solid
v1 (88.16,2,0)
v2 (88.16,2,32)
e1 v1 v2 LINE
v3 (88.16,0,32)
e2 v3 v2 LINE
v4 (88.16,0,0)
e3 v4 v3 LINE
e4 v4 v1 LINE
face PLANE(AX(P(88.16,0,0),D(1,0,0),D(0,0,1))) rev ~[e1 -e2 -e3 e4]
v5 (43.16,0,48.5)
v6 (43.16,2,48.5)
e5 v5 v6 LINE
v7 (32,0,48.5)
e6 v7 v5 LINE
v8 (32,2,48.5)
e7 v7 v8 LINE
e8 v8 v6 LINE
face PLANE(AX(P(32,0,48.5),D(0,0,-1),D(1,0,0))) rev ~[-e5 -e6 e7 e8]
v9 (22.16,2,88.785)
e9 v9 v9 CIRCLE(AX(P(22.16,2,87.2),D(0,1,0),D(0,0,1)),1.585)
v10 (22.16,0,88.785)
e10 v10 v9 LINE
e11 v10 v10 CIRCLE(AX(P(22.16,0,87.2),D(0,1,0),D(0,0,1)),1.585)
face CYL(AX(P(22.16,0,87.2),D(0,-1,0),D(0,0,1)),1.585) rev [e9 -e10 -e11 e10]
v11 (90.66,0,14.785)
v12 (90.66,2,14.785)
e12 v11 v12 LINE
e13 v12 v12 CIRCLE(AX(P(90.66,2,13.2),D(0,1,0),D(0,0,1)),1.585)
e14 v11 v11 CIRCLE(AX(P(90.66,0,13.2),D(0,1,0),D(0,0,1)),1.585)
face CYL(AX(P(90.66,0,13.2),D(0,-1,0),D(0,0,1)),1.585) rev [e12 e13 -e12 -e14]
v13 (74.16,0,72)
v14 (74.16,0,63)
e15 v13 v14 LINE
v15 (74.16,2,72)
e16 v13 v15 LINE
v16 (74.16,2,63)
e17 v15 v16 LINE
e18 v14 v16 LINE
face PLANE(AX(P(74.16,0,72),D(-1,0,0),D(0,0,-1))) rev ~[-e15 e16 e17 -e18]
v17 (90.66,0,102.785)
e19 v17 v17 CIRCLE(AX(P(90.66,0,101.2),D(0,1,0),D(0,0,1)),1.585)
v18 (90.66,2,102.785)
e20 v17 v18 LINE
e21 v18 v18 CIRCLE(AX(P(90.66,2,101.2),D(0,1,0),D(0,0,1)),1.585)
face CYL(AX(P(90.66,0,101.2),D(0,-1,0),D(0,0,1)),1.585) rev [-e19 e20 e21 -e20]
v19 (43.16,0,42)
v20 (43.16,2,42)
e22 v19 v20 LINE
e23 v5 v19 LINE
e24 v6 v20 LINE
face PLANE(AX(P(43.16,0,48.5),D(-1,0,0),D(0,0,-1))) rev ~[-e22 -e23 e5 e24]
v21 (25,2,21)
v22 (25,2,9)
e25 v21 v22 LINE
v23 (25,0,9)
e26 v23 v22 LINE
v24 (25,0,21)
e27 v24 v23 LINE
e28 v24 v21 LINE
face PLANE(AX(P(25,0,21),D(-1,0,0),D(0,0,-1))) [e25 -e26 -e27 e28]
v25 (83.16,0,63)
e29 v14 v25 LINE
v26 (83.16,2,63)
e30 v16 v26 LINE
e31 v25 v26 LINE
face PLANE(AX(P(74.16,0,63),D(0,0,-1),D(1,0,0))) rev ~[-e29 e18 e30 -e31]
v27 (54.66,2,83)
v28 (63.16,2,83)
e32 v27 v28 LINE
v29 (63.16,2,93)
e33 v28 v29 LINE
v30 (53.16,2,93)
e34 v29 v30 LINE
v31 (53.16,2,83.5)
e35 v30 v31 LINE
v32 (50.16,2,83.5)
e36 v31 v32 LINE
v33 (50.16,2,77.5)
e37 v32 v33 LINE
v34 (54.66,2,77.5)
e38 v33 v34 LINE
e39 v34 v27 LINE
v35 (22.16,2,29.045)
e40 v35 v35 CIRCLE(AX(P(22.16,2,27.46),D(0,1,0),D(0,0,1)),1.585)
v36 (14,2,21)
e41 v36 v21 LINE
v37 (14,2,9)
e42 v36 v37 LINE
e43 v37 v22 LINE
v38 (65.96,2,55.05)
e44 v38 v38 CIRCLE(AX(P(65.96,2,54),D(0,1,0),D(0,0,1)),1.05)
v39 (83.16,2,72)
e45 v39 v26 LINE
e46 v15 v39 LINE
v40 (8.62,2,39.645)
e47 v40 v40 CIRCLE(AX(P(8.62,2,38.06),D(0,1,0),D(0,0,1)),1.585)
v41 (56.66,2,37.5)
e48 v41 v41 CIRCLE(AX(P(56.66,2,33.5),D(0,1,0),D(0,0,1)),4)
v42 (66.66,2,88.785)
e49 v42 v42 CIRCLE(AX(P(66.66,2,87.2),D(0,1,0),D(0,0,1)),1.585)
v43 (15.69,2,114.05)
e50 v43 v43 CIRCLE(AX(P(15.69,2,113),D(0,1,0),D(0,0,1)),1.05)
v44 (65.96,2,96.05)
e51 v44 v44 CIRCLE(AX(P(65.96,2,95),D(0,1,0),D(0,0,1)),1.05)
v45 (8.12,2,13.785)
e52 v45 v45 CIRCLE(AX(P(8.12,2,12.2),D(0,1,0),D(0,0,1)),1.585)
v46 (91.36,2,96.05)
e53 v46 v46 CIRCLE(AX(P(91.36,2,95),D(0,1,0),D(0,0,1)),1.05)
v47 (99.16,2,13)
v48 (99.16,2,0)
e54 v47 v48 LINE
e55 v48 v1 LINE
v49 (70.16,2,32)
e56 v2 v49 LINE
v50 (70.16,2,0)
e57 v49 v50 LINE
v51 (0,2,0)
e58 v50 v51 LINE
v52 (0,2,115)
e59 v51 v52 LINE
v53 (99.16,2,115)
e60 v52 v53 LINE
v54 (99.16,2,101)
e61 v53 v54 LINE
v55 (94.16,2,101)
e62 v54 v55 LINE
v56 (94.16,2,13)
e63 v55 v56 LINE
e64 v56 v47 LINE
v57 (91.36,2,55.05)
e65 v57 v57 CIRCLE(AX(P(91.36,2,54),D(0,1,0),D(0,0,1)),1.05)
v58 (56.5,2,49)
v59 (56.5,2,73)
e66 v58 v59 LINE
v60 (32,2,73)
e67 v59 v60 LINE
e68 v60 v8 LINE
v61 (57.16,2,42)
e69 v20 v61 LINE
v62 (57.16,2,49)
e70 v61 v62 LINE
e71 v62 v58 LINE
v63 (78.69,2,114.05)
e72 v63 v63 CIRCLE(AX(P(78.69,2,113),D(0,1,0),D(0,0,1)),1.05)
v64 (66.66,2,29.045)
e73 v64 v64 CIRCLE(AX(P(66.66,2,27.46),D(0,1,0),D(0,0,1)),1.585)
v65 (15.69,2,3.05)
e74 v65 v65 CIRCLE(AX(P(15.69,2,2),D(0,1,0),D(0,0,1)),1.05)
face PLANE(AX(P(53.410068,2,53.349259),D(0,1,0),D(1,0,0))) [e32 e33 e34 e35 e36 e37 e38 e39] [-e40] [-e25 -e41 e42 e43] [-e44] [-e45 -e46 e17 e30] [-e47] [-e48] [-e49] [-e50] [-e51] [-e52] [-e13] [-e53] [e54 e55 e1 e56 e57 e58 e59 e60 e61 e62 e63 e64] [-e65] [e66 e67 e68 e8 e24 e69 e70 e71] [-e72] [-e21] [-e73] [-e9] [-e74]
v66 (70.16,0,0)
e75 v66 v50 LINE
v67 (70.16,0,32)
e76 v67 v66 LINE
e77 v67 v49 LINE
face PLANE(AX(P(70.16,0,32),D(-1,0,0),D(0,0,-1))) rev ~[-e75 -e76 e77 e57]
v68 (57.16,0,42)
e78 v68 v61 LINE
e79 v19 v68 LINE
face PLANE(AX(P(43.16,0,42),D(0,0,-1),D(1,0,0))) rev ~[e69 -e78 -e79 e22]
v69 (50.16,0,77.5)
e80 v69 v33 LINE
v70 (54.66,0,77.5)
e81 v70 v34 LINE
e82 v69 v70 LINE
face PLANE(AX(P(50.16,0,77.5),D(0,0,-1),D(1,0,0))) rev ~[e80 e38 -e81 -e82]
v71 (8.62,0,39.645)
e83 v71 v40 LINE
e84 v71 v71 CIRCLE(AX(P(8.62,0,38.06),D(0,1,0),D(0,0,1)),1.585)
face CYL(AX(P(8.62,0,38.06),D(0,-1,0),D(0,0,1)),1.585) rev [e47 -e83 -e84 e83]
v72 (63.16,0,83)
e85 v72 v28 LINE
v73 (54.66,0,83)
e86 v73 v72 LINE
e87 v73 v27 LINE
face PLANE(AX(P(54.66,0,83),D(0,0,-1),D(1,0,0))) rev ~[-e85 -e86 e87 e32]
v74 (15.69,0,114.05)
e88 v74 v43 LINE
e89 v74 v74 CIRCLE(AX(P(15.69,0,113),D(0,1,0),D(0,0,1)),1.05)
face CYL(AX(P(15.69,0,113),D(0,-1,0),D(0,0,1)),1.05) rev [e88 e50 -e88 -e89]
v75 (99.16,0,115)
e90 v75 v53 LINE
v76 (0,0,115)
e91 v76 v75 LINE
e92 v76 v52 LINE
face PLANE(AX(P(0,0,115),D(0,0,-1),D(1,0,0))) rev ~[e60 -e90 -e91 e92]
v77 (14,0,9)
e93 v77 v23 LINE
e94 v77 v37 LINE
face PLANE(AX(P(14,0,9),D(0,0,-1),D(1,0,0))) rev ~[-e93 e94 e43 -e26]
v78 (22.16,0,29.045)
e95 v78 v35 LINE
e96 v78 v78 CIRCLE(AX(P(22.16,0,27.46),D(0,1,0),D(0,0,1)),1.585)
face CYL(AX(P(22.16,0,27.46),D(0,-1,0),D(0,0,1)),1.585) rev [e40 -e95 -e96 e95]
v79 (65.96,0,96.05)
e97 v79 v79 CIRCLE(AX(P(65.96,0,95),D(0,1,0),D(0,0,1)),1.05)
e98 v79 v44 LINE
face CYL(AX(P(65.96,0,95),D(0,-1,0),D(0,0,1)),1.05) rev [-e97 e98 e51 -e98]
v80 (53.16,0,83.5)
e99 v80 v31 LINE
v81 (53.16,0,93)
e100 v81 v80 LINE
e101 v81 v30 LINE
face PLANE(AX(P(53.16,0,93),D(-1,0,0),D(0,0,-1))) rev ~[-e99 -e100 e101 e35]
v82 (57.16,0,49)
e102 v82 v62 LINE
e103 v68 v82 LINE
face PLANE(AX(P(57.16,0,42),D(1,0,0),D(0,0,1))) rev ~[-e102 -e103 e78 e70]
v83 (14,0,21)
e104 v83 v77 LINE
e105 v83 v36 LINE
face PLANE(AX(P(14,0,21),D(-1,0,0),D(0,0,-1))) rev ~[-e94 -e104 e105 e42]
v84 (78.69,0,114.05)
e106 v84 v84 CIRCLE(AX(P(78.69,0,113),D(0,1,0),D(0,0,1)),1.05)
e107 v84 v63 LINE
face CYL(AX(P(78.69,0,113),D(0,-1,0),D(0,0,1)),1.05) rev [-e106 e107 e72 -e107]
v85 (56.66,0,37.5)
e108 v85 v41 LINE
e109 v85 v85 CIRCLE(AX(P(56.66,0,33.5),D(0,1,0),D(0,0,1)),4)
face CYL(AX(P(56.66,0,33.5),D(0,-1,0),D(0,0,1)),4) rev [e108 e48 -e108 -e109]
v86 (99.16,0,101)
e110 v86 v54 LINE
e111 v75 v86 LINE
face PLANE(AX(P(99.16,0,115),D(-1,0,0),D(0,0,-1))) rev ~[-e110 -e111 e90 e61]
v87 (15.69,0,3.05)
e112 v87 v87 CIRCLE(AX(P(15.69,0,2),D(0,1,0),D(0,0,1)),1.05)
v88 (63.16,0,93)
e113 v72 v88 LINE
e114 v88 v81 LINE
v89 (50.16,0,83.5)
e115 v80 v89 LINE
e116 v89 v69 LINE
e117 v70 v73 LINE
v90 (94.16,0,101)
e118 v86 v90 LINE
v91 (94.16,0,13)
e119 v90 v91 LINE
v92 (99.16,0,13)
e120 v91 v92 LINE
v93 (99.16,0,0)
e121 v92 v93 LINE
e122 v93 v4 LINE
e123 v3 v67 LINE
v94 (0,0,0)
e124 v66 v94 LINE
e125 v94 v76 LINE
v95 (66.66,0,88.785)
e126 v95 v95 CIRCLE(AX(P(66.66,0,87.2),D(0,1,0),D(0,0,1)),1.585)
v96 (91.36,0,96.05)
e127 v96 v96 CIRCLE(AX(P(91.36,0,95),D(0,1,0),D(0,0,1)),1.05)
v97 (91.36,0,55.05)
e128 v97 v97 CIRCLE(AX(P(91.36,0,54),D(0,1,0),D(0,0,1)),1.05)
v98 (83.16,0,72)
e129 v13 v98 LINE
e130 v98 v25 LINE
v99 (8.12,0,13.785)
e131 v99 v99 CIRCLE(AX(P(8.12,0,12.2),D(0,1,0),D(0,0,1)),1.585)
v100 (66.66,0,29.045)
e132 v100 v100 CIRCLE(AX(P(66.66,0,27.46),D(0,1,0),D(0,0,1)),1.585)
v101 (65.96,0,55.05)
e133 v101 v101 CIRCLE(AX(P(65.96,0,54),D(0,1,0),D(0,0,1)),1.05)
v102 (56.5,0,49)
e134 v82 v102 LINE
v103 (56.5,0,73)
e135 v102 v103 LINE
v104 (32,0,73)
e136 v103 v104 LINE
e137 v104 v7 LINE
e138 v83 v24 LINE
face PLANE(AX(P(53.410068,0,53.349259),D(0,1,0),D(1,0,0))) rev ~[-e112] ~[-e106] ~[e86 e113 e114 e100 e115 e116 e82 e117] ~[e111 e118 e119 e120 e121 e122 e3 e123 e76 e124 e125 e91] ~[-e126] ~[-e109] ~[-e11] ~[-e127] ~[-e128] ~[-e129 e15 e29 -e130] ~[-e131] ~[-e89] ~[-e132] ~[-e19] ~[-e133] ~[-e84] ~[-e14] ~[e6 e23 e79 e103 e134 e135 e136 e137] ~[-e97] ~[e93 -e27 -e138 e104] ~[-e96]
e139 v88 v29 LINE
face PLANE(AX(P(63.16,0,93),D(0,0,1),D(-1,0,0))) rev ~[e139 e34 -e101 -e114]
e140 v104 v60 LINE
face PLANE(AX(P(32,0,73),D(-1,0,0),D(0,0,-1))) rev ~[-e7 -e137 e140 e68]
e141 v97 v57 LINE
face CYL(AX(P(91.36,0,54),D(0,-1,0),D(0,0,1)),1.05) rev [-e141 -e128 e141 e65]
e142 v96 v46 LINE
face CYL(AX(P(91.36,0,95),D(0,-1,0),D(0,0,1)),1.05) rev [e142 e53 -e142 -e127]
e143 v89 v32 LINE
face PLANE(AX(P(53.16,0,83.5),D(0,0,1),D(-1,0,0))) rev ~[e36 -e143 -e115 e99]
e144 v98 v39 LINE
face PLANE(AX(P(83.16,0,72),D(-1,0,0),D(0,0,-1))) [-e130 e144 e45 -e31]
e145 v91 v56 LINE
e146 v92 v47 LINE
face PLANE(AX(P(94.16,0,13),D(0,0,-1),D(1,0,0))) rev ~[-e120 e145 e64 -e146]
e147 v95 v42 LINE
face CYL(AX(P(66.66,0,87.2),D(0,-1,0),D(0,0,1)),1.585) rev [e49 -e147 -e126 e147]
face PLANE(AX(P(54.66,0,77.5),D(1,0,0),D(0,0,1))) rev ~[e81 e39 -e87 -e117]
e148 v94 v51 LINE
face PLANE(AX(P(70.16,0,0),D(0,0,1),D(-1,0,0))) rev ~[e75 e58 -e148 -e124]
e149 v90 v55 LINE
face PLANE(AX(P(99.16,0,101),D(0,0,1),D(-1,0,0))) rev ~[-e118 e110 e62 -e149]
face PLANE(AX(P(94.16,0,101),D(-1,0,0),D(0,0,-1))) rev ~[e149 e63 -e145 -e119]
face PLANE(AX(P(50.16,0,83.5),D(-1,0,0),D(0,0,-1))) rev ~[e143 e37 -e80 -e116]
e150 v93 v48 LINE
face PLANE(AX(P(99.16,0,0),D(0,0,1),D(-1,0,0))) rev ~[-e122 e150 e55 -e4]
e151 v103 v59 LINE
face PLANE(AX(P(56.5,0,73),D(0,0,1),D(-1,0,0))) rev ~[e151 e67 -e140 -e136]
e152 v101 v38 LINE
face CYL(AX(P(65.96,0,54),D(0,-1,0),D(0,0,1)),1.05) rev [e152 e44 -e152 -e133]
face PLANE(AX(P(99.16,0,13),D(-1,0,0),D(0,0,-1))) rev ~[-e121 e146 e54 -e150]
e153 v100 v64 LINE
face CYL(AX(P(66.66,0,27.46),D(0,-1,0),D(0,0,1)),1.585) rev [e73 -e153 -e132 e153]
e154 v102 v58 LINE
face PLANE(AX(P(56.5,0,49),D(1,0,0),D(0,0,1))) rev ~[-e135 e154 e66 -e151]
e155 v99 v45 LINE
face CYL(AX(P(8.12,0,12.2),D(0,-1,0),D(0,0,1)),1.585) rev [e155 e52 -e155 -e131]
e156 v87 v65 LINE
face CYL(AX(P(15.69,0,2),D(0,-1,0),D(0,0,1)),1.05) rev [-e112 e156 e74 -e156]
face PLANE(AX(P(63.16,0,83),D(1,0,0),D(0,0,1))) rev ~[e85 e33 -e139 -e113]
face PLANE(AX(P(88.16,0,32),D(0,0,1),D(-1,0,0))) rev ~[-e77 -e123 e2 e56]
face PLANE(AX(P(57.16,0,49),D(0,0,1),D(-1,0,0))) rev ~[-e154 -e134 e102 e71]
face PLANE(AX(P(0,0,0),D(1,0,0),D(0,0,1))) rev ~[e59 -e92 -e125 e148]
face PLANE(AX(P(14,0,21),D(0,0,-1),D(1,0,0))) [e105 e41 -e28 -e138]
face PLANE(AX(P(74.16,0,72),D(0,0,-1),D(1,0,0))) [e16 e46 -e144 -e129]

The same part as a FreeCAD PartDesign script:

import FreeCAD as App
import Part
import Sketcher

V = App.Vector
Q = App.Units.Quantity


def add_polygon(sketch, points):
    """Adds a closed chain of lines whose ends are joined by coincident constraints."""
    first, n = sketch.GeometryCount, len(points)
    for a, b in zip(points, points[1:] + points[:1]):
        sketch.addGeometry(Part.LineSegment(App.Vector(*a, 0), App.Vector(*b, 0)), False)
    for i in range(n):
        sketch.addConstraint(Sketcher.Constraint("Coincident", first + i, 2, first + (i + 1) % n, 1))

doc = App.newDocument("Part")
body = doc.addObject("PartDesign::Body", "Body")

# Sketch on XZ plane
sketch1 = body.newObject("Sketcher::SketchObject", "Sketch")
sketch1.AttachmentSupport = (doc.getObject("XZ_Plane"), [""])
sketch1.MapMode = "FlatFace"
add_polygon(sketch1, [(70.2, 0), (0, 0), (0, 115), (99.2, 115), (99.2, 101), (94.2, 101), (94.2, 13), (99.2, 13), (99.2, 0), (88.2, 0), (88.2, 32), (70.2, 32)])  # lines 0-11
sketch1.addGeometry(Part.Circle(V(15.7, 113, 0), V(0, 0, 1), 1.1), False)  # 12
sketch1.addGeometry(Part.Circle(V(22.2, 87.2, 0), V(0, 0, 1), 1.6), False)  # 13
sketch1.addGeometry(Part.Circle(V(66, 95, 0), V(0, 0, 1), 1.1), False)  # 14
sketch1.addGeometry(Part.Circle(V(66.7, 87.2, 0), V(0, 0, 1), 1.6), False)  # 15
sketch1.addGeometry(Part.Circle(V(78.7, 113, 0), V(0, 0, 1), 1.1), False)  # 16
sketch1.addGeometry(Part.Circle(V(90.7, 101.2, 0), V(0, 0, 1), 1.6), False)  # 17
sketch1.addGeometry(Part.Circle(V(91.4, 95, 0), V(0, 0, 1), 1.1), False)  # 18
add_polygon(sketch1, [(53.2, 83.5), (50.2, 83.5), (50.2, 77.5), (54.7, 77.5), (54.7, 83), (63.2, 83), (63.2, 93), (53.2, 93)])  # lines 19-26
add_polygon(sketch1, [(83.2, 72), (74.2, 72), (74.2, 63), (83.2, 63)])  # lines 27-30
sketch1.addGeometry(Part.Circle(V(8.6, 38.1, 0), V(0, 0, 1), 1.6), False)  # 31
add_polygon(sketch1, [(32, 48.5), (43.2, 48.5), (43.2, 42), (57.2, 42), (57.2, 49), (56.5, 49), (56.5, 73), (32, 73)])  # lines 32-39
sketch1.addGeometry(Part.Circle(V(22.2, 27.5, 0), V(0, 0, 1), 1.6), False)  # 40
sketch1.addGeometry(Part.Circle(V(8.1, 12.2, 0), V(0, 0, 1), 1.6), False)  # 41
sketch1.addGeometry(Part.Circle(V(15.7, 2, 0), V(0, 0, 1), 1.1), False)  # 42
add_polygon(sketch1, [(25, 21), (14, 21), (14, 9), (25, 9)])  # lines 43-46
sketch1.addGeometry(Part.Circle(V(66, 54, 0), V(0, 0, 1), 1.1), False)  # 47
sketch1.addGeometry(Part.Circle(V(56.7, 33.5, 0), V(0, 0, 1), 4), False)  # 48
sketch1.addGeometry(Part.Circle(V(91.4, 54, 0), V(0, 0, 1), 1.1), False)  # 49
sketch1.addGeometry(Part.Circle(V(66.7, 27.5, 0), V(0, 0, 1), 1.6), False)  # 50
sketch1.addGeometry(Part.Circle(V(90.7, 13.2, 0), V(0, 0, 1), 1.6), False)  # 51
sketch1.addConstraint([
    Sketcher.Constraint("Horizontal", 0),
    Sketcher.Constraint("Vertical", 1),
    Sketcher.Constraint("Horizontal", 2),
    Sketcher.Constraint("Vertical", 3),
    Sketcher.Constraint("Horizontal", 4),
    Sketcher.Constraint("Vertical", 5),
    Sketcher.Constraint("Horizontal", 6),
    Sketcher.Constraint("Vertical", 7),
    Sketcher.Constraint("Horizontal", 8),
    Sketcher.Constraint("Vertical", 9),
    Sketcher.Constraint("Horizontal", 10),
    Sketcher.Constraint("Vertical", 11),
    Sketcher.Constraint("Horizontal", 19),
    Sketcher.Constraint("Vertical", 20),
    Sketcher.Constraint("Horizontal", 21),
    Sketcher.Constraint("Vertical", 22),
    Sketcher.Constraint("Horizontal", 23),
    Sketcher.Constraint("Vertical", 24),
    Sketcher.Constraint("Horizontal", 25),
    Sketcher.Constraint("Vertical", 26),
    Sketcher.Constraint("Horizontal", 27),
    Sketcher.Constraint("Vertical", 28),
    Sketcher.Constraint("Horizontal", 29),
    Sketcher.Constraint("Vertical", 30),
    Sketcher.Constraint("Horizontal", 32),
    Sketcher.Constraint("Vertical", 33),
    Sketcher.Constraint("Horizontal", 34),
    Sketcher.Constraint("Vertical", 35),
    Sketcher.Constraint("Horizontal", 36),
    Sketcher.Constraint("Vertical", 37),
    Sketcher.Constraint("Horizontal", 38),
    Sketcher.Constraint("Vertical", 39),
    Sketcher.Constraint("Horizontal", 43),
    Sketcher.Constraint("Vertical", 44),
    Sketcher.Constraint("Horizontal", 45),
    Sketcher.Constraint("Vertical", 46),
    Sketcher.Constraint("Coincident", 0, 2, -1, 1),
    Sketcher.Constraint("Equal", 12, 14),
    Sketcher.Constraint("Equal", 13, 15),
    Sketcher.Constraint("Equal", 14, 16),
    Sketcher.Constraint("Equal", 15, 17),
    Sketcher.Constraint("Equal", 16, 18),
    Sketcher.Constraint("Equal", 17, 31),
    Sketcher.Constraint("Equal", 31, 40),
    Sketcher.Constraint("Equal", 40, 41),
    Sketcher.Constraint("Equal", 18, 42),
    Sketcher.Constraint("Equal", 42, 47),
    Sketcher.Constraint("Equal", 47, 49),
    Sketcher.Constraint("Equal", 41, 50),
    Sketcher.Constraint("Equal", 50, 51),
    Sketcher.Constraint("PointOnObject", 7, 2, -1),
    Sketcher.Constraint("Horizontal", 13, 3, 15, 3),
    Sketcher.Constraint("Horizontal", 12, 3, 16, 3),
    Sketcher.Constraint("Horizontal", 14, 3, 18, 3),
    Sketcher.Constraint("Horizontal", 47, 3, 49, 3),
    Sketcher.Constraint("Horizontal", 40, 3, 50, 3),
    Sketcher.Constraint("Vertical", 13, 3, 40, 3),
    Sketcher.Constraint("Vertical", 12, 3, 42, 3),
    Sketcher.Constraint("Vertical", 14, 3, 47, 3),
    Sketcher.Constraint("Vertical", 18, 3, 49, 3),
    Sketcher.Constraint("Vertical", 15, 3, 50, 3),
    Sketcher.Constraint("Vertical", 17, 3, 51, 3),
    Sketcher.Constraint("Vertical", 3, 2, 6, 2),
    Sketcher.Constraint("Equal", 8, 43),
    Sketcher.Constraint("Equal", 34, 3),
    Sketcher.Constraint("Equal", 25, 24),
    Sketcher.Constraint("Equal", 29, 28),
    Sketcher.Constraint("Equal", 38, 39),
    Sketcher.Constraint("Diameter", 48, Q("8 mm")),
    Sketcher.Constraint("Diameter", 12, Q("2.1 mm")),
    Sketcher.Constraint("Diameter", 13, Q("3.17 mm")),
    Sketcher.Constraint("DistanceX", 4, 2, 4, 1, Q("5 mm")),
    Sketcher.Constraint("DistanceX", 8, 2, 8, 1, Q("11 mm")),
    Sketcher.Constraint("DistanceX", 10, 2, 10, 1, Q("18 mm")),
    Sketcher.Constraint("DistanceX", 19, 2, 19, 1, Q("3 mm")),
    Sketcher.Constraint("DistanceX", 25, 2, 25, 1, Q("10 mm")),
    Sketcher.Constraint("DistanceX", 27, 2, 27, 1, Q("9 mm")),
    Sketcher.Constraint("DistanceX", 34, 1, 34, 2, Q("14 mm")),
    Sketcher.Constraint("DistanceY", 1, 1, 1, 2, Q("115 mm")),
    Sketcher.Constraint("DistanceY", 5, 2, 5, 1, Q("88 mm")),
    Sketcher.Constraint("DistanceY", 9, 1, 9, 2, Q("32 mm")),
    Sketcher.Constraint("DistanceY", 20, 2, 20, 1, Q("6 mm")),
    Sketcher.Constraint("DistanceY", 35, 1, 35, 2, Q("7 mm")),
    Sketcher.Constraint("DistanceY", 37, 1, 37, 2, Q("24 mm")),
    Sketcher.Constraint("DistanceY", 44, 2, 44, 1, Q("12 mm")),
    Sketcher.Constraint("DistanceX", 21, 1, 21, 2, Q("4.5 mm")),
    Sketcher.Constraint("DistanceX", 38, 2, 38, 1, Q("24.5 mm")),
    Sketcher.Constraint("DistanceY", 22, 1, 22, 2, Q("5.5 mm")),
    Sketcher.Constraint("DistanceY", -1, 1, 12, 3, Q("113 mm")),
    Sketcher.Constraint("DistanceY", -1, 1, 14, 3, Q("95 mm")),
    Sketcher.Constraint("DistanceY", -1, 1, 42, 3, Q("2 mm")),
    Sketcher.Constraint("DistanceY", -1, 1, 47, 3, Q("54 mm")),
    Sketcher.Constraint("DistanceY", -1, 1, 22, 2, Q("83 mm")),
    Sketcher.Constraint("DistanceY", -1, 1, 27, 2, Q("72 mm")),
    Sketcher.Constraint("DistanceY", -1, 1, 33, 2, Q("42 mm")),
    Sketcher.Constraint("DistanceX", -1, 1, 38, 2, Q("32 mm")),
    Sketcher.Constraint("DistanceX", -1, 1, 43, 2, Q("14 mm")),
    Sketcher.Constraint("DistanceY", -1, 1, 43, 2, Q("21 mm")),
    Sketcher.Constraint("DistanceX", 12, 3, 16, 3, Q("63 mm")),
    Sketcher.Constraint("DistanceX", 15, 3, 17, 3, Q("24 mm")),
    Sketcher.Constraint("DistanceY", 15, 3, 17, 3, Q("14 mm")),
    Sketcher.Constraint("DistanceY", 41, 3, 13, 3, Q("75 mm")),
    Sketcher.Constraint("DistanceX", 48, 3, 50, 3, Q("10 mm")),
    Sketcher.Constraint("DistanceX", 13, 3, 19, 2, Q("28 mm")),
    Sketcher.Constraint("DistanceX", 21, 2, 15, 3, Q("12 mm")),
    Sketcher.Constraint("DistanceX", 23, 2, 27, 2, Q("11 mm")),
    Sketcher.Constraint("DistanceY", 48, 3, 32, 2, Q("15 mm")),
    Sketcher.Constraint("DistanceX", 40, 3, 32, 2, Q("21 mm")),
    Sketcher.Constraint("DistanceX", 34, 2, 10, 2, Q("13 mm")),
    Sketcher.Constraint("DistanceX", 0, 2, 0, 1, Q("70.16 mm")),
    Sketcher.Constraint("DistanceY", -1, 1, 13, 3, Q("87.2 mm")),
    Sketcher.Constraint("DistanceY", -1, 1, 51, 3, Q("13.2 mm")),
    Sketcher.Constraint("DistanceX", 13, 3, 14, 3, Q("43.8 mm")),
    Sketcher.Constraint("DistanceX", 17, 3, 18, 3, Q("0.7 mm")),
    Sketcher.Constraint("DistanceY", 40, 3, 31, 3, Q("10.6 mm")),
    Sketcher.Constraint("DistanceX", 41, 3, 31, 3, Q("0.5 mm")),
    Sketcher.Constraint("DistanceX", -1, 1, 12, 3, Q("15.69 mm")),
    Sketcher.Constraint("DistanceX", -1, 1, 31, 3, Q("8.62 mm")),
    Sketcher.Constraint("DistanceY", -1, 1, 31, 3, Q("38.06 mm")),
])
pad1 = body.newObject("PartDesign::Pad", "Pad")
pad1.Profile = sketch1
pad1.Length = 2
pad1.Reversed = True

doc.recompute()
